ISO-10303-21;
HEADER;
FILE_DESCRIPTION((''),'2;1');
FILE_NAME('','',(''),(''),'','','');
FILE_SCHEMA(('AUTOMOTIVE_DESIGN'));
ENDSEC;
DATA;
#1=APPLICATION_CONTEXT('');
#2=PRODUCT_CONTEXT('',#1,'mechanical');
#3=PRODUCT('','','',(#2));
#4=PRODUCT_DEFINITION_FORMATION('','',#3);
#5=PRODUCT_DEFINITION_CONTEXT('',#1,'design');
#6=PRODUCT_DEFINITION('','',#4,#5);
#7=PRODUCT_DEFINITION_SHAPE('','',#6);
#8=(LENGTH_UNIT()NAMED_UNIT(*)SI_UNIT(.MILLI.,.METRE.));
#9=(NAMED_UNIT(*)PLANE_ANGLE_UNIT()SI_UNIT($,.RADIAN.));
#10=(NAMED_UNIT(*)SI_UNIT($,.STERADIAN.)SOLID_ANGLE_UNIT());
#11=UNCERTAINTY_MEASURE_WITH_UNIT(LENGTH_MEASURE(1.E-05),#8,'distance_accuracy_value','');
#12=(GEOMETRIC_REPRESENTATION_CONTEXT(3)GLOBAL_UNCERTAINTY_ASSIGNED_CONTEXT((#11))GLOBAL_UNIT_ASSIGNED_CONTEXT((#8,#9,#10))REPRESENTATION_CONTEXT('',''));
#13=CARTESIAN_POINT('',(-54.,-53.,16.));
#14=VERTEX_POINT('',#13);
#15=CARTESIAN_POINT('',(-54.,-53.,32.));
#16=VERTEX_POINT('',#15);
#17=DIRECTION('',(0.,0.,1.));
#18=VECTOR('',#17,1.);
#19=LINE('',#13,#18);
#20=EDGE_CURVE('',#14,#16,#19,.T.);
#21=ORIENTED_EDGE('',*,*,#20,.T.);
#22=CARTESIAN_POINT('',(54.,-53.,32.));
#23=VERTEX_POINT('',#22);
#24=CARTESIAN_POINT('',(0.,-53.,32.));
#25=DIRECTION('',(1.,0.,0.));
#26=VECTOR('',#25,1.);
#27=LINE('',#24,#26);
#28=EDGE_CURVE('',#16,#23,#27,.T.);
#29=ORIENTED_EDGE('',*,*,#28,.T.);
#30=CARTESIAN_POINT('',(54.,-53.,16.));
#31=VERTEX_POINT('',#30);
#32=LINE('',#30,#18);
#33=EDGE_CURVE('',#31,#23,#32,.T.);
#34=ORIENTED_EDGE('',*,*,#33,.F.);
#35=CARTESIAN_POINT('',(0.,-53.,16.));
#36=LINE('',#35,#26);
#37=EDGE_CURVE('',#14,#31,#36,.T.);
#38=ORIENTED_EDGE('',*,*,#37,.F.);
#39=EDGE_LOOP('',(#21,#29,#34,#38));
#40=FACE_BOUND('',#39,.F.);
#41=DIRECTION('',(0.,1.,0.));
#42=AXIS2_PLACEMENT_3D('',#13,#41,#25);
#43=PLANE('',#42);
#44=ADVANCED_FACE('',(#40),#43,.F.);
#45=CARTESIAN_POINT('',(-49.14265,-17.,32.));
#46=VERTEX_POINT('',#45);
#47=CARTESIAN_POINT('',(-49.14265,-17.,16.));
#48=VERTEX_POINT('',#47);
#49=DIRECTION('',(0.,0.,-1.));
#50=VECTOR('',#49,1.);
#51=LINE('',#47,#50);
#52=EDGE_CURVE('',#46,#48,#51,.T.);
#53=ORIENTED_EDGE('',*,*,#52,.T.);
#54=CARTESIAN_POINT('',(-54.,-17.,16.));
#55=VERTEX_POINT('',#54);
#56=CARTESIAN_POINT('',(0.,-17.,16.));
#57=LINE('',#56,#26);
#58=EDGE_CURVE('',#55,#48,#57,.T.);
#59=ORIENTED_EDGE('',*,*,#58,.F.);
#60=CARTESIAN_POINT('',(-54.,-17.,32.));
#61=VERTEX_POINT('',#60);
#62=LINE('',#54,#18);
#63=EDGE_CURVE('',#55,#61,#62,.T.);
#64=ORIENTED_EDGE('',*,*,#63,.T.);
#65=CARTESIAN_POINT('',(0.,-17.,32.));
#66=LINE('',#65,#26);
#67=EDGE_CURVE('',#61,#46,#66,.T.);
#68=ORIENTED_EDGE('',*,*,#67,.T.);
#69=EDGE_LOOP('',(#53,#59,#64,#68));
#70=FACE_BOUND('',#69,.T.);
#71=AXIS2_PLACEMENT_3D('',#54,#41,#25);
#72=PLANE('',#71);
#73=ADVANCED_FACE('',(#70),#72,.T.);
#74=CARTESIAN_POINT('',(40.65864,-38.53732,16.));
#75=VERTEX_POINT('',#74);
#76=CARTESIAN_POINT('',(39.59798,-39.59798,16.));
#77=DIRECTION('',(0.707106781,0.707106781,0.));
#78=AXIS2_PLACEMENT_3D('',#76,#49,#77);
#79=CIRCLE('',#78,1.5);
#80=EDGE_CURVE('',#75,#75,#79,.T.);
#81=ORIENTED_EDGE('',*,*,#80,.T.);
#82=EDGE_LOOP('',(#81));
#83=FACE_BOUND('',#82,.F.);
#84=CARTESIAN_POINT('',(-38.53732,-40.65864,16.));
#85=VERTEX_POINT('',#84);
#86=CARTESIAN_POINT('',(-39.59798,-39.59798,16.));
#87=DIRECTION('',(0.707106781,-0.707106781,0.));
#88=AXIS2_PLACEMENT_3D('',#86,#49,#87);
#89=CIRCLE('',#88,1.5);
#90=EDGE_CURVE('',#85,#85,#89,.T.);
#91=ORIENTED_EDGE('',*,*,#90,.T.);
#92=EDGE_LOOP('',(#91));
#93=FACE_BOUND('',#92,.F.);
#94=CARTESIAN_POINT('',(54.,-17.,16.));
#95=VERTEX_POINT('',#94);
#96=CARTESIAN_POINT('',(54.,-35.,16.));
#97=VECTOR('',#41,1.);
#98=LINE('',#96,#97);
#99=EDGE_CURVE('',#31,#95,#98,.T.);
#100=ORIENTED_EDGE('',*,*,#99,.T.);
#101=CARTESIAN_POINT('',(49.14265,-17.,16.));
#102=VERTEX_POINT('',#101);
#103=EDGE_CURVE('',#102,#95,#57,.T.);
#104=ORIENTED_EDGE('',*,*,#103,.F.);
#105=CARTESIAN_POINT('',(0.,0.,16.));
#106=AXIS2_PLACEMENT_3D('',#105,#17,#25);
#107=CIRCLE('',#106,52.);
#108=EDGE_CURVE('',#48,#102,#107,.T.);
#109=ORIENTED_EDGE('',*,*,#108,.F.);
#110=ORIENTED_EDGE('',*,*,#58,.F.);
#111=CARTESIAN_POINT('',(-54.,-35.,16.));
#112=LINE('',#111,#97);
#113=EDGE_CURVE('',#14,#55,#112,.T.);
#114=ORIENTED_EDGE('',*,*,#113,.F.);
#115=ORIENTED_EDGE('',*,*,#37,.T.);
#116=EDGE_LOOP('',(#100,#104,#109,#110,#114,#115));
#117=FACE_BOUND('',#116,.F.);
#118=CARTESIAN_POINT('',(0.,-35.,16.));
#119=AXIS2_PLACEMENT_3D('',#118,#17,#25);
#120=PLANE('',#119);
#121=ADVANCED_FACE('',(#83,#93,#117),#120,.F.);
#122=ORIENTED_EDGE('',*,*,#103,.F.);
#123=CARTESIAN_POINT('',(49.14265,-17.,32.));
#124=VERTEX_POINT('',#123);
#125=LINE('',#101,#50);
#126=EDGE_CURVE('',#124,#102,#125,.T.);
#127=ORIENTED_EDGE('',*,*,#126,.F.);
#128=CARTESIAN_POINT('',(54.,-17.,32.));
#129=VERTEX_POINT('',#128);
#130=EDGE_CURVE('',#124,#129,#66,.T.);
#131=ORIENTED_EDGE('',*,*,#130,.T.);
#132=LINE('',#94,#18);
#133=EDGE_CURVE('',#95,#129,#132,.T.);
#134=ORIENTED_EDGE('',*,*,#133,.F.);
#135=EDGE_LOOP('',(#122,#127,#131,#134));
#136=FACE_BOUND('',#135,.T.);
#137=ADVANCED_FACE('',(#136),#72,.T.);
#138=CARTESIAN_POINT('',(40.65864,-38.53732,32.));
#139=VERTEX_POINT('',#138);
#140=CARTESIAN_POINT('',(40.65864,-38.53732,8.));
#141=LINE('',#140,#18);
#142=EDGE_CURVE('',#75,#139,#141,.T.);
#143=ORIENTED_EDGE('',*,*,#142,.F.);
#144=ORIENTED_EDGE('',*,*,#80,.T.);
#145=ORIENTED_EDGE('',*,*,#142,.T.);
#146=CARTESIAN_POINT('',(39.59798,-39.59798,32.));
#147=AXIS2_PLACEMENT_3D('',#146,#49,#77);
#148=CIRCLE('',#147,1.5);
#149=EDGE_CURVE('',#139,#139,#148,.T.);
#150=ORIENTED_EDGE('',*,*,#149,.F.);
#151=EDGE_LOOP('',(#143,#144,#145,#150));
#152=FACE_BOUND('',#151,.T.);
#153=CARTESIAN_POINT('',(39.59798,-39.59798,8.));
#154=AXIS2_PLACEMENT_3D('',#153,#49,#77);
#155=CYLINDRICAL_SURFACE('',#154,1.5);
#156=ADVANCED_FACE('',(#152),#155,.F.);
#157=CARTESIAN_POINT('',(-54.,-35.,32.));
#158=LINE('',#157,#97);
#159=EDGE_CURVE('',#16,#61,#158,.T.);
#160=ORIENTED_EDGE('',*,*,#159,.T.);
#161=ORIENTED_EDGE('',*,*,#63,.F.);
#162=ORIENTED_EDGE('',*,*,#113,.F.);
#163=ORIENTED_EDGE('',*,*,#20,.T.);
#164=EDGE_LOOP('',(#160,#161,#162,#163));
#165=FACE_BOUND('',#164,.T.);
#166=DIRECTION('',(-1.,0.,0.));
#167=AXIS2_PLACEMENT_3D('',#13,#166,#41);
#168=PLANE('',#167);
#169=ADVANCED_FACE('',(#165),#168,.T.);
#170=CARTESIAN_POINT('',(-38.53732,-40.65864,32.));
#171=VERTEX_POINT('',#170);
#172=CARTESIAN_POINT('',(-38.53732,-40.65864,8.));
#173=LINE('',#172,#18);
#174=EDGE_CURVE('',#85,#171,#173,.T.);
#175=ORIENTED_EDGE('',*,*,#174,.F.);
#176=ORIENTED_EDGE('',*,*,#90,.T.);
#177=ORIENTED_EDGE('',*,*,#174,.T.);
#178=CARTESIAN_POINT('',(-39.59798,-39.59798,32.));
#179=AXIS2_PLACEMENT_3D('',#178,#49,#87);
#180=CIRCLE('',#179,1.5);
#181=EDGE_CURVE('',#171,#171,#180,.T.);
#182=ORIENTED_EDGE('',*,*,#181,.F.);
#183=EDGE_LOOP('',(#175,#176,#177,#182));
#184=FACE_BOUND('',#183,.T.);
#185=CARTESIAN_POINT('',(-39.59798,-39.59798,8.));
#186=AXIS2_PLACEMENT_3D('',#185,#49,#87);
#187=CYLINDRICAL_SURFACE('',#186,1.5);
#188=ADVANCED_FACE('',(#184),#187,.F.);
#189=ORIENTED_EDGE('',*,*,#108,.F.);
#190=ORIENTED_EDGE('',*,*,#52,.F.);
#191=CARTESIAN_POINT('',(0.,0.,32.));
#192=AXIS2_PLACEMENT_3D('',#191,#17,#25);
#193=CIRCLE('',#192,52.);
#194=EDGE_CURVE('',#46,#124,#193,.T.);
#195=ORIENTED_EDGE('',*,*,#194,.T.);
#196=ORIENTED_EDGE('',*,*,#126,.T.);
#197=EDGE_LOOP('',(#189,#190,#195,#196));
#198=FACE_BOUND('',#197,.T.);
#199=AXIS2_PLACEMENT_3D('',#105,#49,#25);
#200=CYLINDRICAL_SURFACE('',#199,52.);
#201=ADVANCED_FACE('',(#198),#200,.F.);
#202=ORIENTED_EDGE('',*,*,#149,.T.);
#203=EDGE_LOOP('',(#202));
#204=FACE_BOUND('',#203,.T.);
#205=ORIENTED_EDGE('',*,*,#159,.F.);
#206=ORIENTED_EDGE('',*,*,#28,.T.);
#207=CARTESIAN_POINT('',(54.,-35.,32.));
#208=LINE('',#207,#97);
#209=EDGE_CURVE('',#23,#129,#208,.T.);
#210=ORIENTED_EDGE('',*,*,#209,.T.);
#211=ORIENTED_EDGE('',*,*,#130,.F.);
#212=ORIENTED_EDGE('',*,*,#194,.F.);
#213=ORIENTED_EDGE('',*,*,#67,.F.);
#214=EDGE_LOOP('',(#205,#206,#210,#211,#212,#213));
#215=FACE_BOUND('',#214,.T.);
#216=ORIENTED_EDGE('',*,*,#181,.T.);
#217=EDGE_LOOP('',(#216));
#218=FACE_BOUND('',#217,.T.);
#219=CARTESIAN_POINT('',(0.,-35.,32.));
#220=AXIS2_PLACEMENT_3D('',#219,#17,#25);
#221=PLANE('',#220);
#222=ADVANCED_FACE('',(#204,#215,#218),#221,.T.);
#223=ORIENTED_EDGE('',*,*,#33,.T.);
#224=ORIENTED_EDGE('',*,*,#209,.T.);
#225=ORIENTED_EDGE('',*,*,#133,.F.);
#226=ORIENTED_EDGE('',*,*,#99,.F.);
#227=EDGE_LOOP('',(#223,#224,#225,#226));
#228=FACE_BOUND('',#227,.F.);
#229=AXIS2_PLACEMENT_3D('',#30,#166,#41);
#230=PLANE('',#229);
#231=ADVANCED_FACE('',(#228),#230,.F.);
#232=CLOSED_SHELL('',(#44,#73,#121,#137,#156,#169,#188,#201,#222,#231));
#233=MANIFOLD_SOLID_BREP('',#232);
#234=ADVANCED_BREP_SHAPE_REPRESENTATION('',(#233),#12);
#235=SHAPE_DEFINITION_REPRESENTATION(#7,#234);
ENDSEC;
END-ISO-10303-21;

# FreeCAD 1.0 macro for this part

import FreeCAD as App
import Part
import Sketcher

V = App.Vector
Q = App.Units.Quantity

doc = App.newDocument("Part")
params = doc.addObject("Spreadsheet::Sheet", "Params")
for row, (alias, value) in enumerate([
    ("sketch1_diameter", "3 mm"),
    ("pad1_length", "50 mm"),
    ("sketch2_diameter", "3 mm"),
    ("pad2_length", "50 mm"),
    ("sketch3_diameter", "3 mm"),
    ("pad3_length", "50 mm"),
    ("sketch4_diameter", "3 mm"),
    ("pad4_length", "50 mm"),
    ("sketch5_diameter", "3 mm"),
    ("pad5_length", "50 mm"),
    ("sketch6_diameter", "3 mm"),
    ("pad6_length", "50 mm"),
    ("sketch7_diameter", "3 mm"),
    ("pad7_length", "50 mm"),
    ("sketch8_diameter", "104 mm"),
    ("pad8_length", "16 mm"),
    ("sketch9_width", "108 mm"),
    ("sketch9_height", "36 mm"),
    ("pad9_length", "16 mm"),
], start=1):
    params.set(f"A{row}", alias)
    params.set(f"B{row}", "=" + value)
    params.setAlias(f"B{row}", alias)

body = doc.addObject("PartDesign::Body", "Body")

# Sketch on XY plane
sketch1 = body.newObject("Sketcher::SketchObject", "Sketch")
sketch1.AttachmentSupport = (doc.getObject("XY_Plane"), [""])
sketch1.MapMode = "FlatFace"
sketch1.addGeometry(Part.Circle(V(0, 0, 0), V(0, 0, 1), 1.5), False)
sketch1.addConstraint(Sketcher.Constraint("Coincident", 0, 3, -1, 1))
sketch1.addConstraint(Sketcher.Constraint("Diameter", 0, Q("3 mm")))
sketch1.setExpression("Constraints[1]", "Params.sketch1_diameter")
pad1 = body.newObject("PartDesign::Pad", "Pad")
pad1.Profile = sketch1
pad1.setExpression("Length", "Params.pad1_length")
body2 = doc.addObject("PartDesign::Body", "Body001")
doc.recompute()

body.Placement = App.Placement(V(39.59798, -39.59798, 2), App.Rotation(V(0, 0, 1), 45))
boolean = body2.newObject("PartDesign::Boolean", "Boolean")
boolean.Type = "Fuse"
boolean.addObjects([body])
body3 = doc.addObject("PartDesign::Body", "Body002")

# Sketch on XY plane
sketch2 = body3.newObject("Sketcher::SketchObject", "Sketch001")
sketch2.AttachmentSupport = (doc.getObject("XY_Plane002"), [""])
sketch2.MapMode = "FlatFace"
sketch2.addGeometry(Part.Circle(V(0, 0, 0), V(0, 0, 1), 1.5), False)
sketch2.addConstraint(Sketcher.Constraint("Coincident", 0, 3, -1, 1))
sketch2.addConstraint(Sketcher.Constraint("Diameter", 0, Q("3 mm")))
sketch2.setExpression("Constraints[1]", "Params.sketch2_diameter")
pad2 = body3.newObject("PartDesign::Pad", "Pad001")
pad2.Profile = sketch2
pad2.setExpression("Length", "Params.pad2_length")
body4 = doc.addObject("PartDesign::Body", "Body003")
doc.recompute()

body3.Placement = App.Placement(V(39.59798, 39.59798, 2), App.Rotation(V(0, 0, 1), 135))
boolean2 = body4.newObject("PartDesign::Boolean", "Boolean001")
boolean2.Type = "Fuse"
boolean2.addObjects([body3])
body5 = doc.addObject("PartDesign::Body", "Body004")

# Sketch on XY plane
sketch3 = body5.newObject("Sketcher::SketchObject", "Sketch002")
sketch3.AttachmentSupport = (doc.getObject("XY_Plane004"), [""])
sketch3.MapMode = "FlatFace"
sketch3.AttachmentOffset = App.Placement(V(0, 0, 2), App.Rotation())
sketch3.addGeometry(Part.Circle(V(0, 56, 0), V(0, 0, 1), 1.5), False)
sketch3.addConstraint(Sketcher.Constraint("PointOnObject", 0, 3, -2))
sketch3.addConstraint(Sketcher.Constraint("Diameter", 0, Q("3 mm")))
sketch3.addConstraint(Sketcher.Constraint("DistanceY", -1, 1, 0, 3, Q("56 mm")))
sketch3.setExpression("Constraints[1]", "Params.sketch3_diameter")
pad3 = body5.newObject("PartDesign::Pad", "Pad002")
pad3.Profile = sketch3
pad3.setExpression("Length", "Params.pad3_length")
body6 = doc.addObject("PartDesign::Body", "Body005")

# Sketch on XY plane
sketch4 = body6.newObject("Sketcher::SketchObject", "Sketch003")
sketch4.AttachmentSupport = (doc.getObject("XY_Plane005"), [""])
sketch4.MapMode = "FlatFace"
sketch4.addGeometry(Part.Circle(V(0, 0, 0), V(0, 0, 1), 1.5), False)
sketch4.addConstraint(Sketcher.Constraint("Coincident", 0, 3, -1, 1))
sketch4.addConstraint(Sketcher.Constraint("Diameter", 0, Q("3 mm")))
sketch4.setExpression("Constraints[1]", "Params.sketch4_diameter")
pad4 = body6.newObject("PartDesign::Pad", "Pad003")
pad4.Profile = sketch4
pad4.setExpression("Length", "Params.pad4_length")
body7 = doc.addObject("PartDesign::Body", "Body006")
doc.recompute()

body6.Placement = App.Placement(V(-39.59798, 39.59798, 2), App.Rotation(V(0, 0, 1), 225))
boolean3 = body7.newObject("PartDesign::Boolean", "Boolean002")
boolean3.Type = "Fuse"
boolean3.addObjects([body6])
body8 = doc.addObject("PartDesign::Body", "Body007")

# Sketch on XY plane
sketch5 = body8.newObject("Sketcher::SketchObject", "Sketch004")
sketch5.AttachmentSupport = (doc.getObject("XY_Plane007"), [""])
sketch5.MapMode = "FlatFace"
sketch5.AttachmentOffset = App.Placement(V(0, 0, 2), App.Rotation())
sketch5.addGeometry(Part.Circle(V(-56, 0, 0), V(0, 0, 1), 1.5), False)
sketch5.addConstraint(Sketcher.Constraint("PointOnObject", 0, 3, -1))
sketch5.addConstraint(Sketcher.Constraint("Diameter", 0, Q("3 mm")))
sketch5.addConstraint(Sketcher.Constraint("DistanceX", 0, 3, -1, 1, Q("56 mm")))
sketch5.setExpression("Constraints[1]", "Params.sketch5_diameter")
pad5 = body8.newObject("PartDesign::Pad", "Pad004")
pad5.Profile = sketch5
pad5.setExpression("Length", "Params.pad5_length")
body9 = doc.addObject("PartDesign::Body", "Body008")

# Sketch on XY plane
sketch6 = body9.newObject("Sketcher::SketchObject", "Sketch005")
sketch6.AttachmentSupport = (doc.getObject("XY_Plane008"), [""])
sketch6.MapMode = "FlatFace"
sketch6.addGeometry(Part.Circle(V(0, 0, 0), V(0, 0, 1), 1.5), False)
sketch6.addConstraint(Sketcher.Constraint("Coincident", 0, 3, -1, 1))
sketch6.addConstraint(Sketcher.Constraint("Diameter", 0, Q("3 mm")))
sketch6.setExpression("Constraints[1]", "Params.sketch6_diameter")
pad6 = body9.newObject("PartDesign::Pad", "Pad005")
pad6.Profile = sketch6
pad6.setExpression("Length", "Params.pad6_length")
body10 = doc.addObject("PartDesign::Body", "Body009")
doc.recompute()

body9.Placement = App.Placement(V(-39.59798, -39.59798, 2), App.Rotation(V(0, 0, -1), 45))
boolean4 = body10.newObject("PartDesign::Boolean", "Boolean003")
boolean4.Type = "Fuse"
boolean4.addObjects([body9])
body11 = doc.addObject("PartDesign::Body", "Body010")
body11.AllowCompound = True

# Sketch on XY plane
sketch7 = body11.newObject("Sketcher::SketchObject", "Sketch006")
sketch7.AttachmentSupport = (doc.getObject("XY_Plane010"), [""])
sketch7.MapMode = "FlatFace"
sketch7.AttachmentOffset = App.Placement(V(0, 0, 2), App.Rotation())
sketch7.addGeometry(Part.Circle(V(0, -56, 0), V(0, 0, 1), 1.5), False)
sketch7.addConstraint(Sketcher.Constraint("PointOnObject", 0, 3, -2))
sketch7.addConstraint(Sketcher.Constraint("Diameter", 0, Q("3 mm")))
sketch7.addConstraint(Sketcher.Constraint("DistanceY", 0, 3, -1, 1, Q("56 mm")))
sketch7.setExpression("Constraints[1]", "Params.sketch7_diameter")
pad7 = body11.newObject("PartDesign::Pad", "Pad006")
pad7.Profile = sketch7
pad7.setExpression("Length", "Params.pad7_length")
doc.recompute()

boolean5 = body11.newObject("PartDesign::Boolean", "Boolean004")
boolean5.Type = "Fuse"
boolean5.addObjects([body2])
doc.recompute()

boolean6 = body11.newObject("PartDesign::Boolean", "Boolean005")
boolean6.Type = "Fuse"
boolean6.addObjects([body4])
doc.recompute()

boolean7 = body11.newObject("PartDesign::Boolean", "Boolean006")
boolean7.Type = "Fuse"
boolean7.addObjects([body5])
doc.recompute()

boolean8 = body11.newObject("PartDesign::Boolean", "Boolean007")
boolean8.Type = "Fuse"
boolean8.addObjects([body7])
doc.recompute()

boolean9 = body11.newObject("PartDesign::Boolean", "Boolean008")
boolean9.Type = "Fuse"
boolean9.addObjects([body8])
doc.recompute()

boolean10 = body11.newObject("PartDesign::Boolean", "Boolean009")
boolean10.Type = "Fuse"
boolean10.addObjects([body10])
body12 = doc.addObject("PartDesign::Body", "Body011")

# Sketch on XY plane
sketch8 = body12.newObject("Sketcher::SketchObject", "Sketch007")
sketch8.AttachmentSupport = (doc.getObject("XY_Plane011"), [""])
sketch8.MapMode = "FlatFace"
sketch8.AttachmentOffset = App.Placement(V(0, 0, 20), App.Rotation())
sketch8.addGeometry(Part.Circle(V(0, 0, 0), V(0, 0, 1), 52), False)
sketch8.addConstraint(Sketcher.Constraint("Coincident", 0, 3, -1, 1))
sketch8.addConstraint(Sketcher.Constraint("Diameter", 0, Q("104 mm")))
sketch8.setExpression("Constraints[1]", "Params.sketch8_diameter")
pad8 = body12.newObject("PartDesign::Pad", "Pad007")
pad8.Profile = sketch8
pad8.setExpression("Length", "Params.pad8_length")
body13 = doc.addObject("PartDesign::Body", "Body012")

# Sketch on XY plane
sketch9 = body13.newObject("Sketcher::SketchObject", "Sketch008")
sketch9.AttachmentSupport = (doc.getObject("XY_Plane012"), [""])
sketch9.MapMode = "FlatFace"
sketch9.AttachmentOffset = App.Placement(V(0, 0, 20), App.Rotation())
sketch9.addGeometry(Part.LineSegment(V(-54, -17, 0), V(-54, -53, 0)), False)
sketch9.addGeometry(Part.LineSegment(V(-54, -53, 0), V(54, -53, 0)), False)
sketch9.addGeometry(Part.LineSegment(V(54, -53, 0), V(54, -17, 0)), False)
sketch9.addGeometry(Part.LineSegment(V(54, -17, 0), V(-54, -17, 0)), False)
sketch9.addConstraint(Sketcher.Constraint("Coincident", 0, 2, 1, 1))
sketch9.addConstraint(Sketcher.Constraint("Coincident", 1, 2, 2, 1))
sketch9.addConstraint(Sketcher.Constraint("Coincident", 2, 2, 3, 1))
sketch9.addConstraint(Sketcher.Constraint("Coincident", 3, 2, 0, 1))
sketch9.addConstraint(Sketcher.Constraint("Vertical", 0))
sketch9.addConstraint(Sketcher.Constraint("Horizontal", 1))
sketch9.addConstraint(Sketcher.Constraint("Vertical", 2))
sketch9.addConstraint(Sketcher.Constraint("Horizontal", 3))
sketch9.addConstraint(Sketcher.Constraint("DistanceX", 1, 1, 1, 2, Q("108 mm")))
sketch9.addConstraint(Sketcher.Constraint("DistanceY", 0, 2, 0, 1, Q("36 mm")))
sketch9.addConstraint(Sketcher.Constraint("DistanceX", 0, 2, -1, 1, Q("54 mm")))
sketch9.addConstraint(Sketcher.Constraint("DistanceY", 0, 2, -1, 1, Q("53 mm")))
sketch9.setExpression("Constraints[8]", "Params.sketch9_width")
sketch9.setExpression("Constraints[9]", "Params.sketch9_height")
pad9 = body13.newObject("PartDesign::Pad", "Pad008")
pad9.Profile = sketch9
pad9.setExpression("Length", "Params.pad9_length")
doc.recompute()

boolean11 = body13.newObject("PartDesign::Boolean", "Boolean010")
boolean11.Type = "Cut"
boolean11.addObjects([body12])
body14 = doc.addObject("PartDesign::Body", "Body013")
doc.recompute()

body13.Placement = App.Placement(V(0, 0, -10), App.Rotation(V(0, 0, 1), 0))
boolean12 = body14.newObject("PartDesign::Boolean", "Boolean011")
boolean12.Type = "Fuse"
boolean12.addObjects([body13])
doc.recompute()

boolean13 = body14.newObject("PartDesign::Boolean", "Boolean012")
boolean13.Type = "Cut"
boolean13.addObjects([body11])
body15 = doc.addObject("PartDesign::Body", "Body014")
doc.recompute()

body14.Placement = App.Placement(V(0, 0, 6), App.Rotation(V(0, 0, 1), 0))
boolean14 = body15.newObject("PartDesign::Boolean", "Boolean013")
boolean14.Type = "Fuse"
boolean14.addObjects([body14])

doc.recompute()
